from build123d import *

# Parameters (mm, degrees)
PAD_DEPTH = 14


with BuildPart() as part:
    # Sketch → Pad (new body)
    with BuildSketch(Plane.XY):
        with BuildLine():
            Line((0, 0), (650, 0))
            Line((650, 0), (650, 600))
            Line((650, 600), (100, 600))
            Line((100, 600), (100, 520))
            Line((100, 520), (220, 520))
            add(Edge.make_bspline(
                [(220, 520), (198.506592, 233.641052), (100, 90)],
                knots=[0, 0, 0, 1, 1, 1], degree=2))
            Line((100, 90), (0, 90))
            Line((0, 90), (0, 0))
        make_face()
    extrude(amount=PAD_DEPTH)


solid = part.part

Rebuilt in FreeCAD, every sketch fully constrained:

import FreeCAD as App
import Part
import Sketcher

V = App.Vector

doc = App.newDocument("Part")
body = doc.addObject("PartDesign::Body", "Body")

# Sketch on XY plane
sketch1 = doc.addObject("Sketcher::SketchObject", "Sketch")
body.addObject(sketch1)
sketch1.AttachmentSupport = (doc.XY_Plane, [""])
sketch1.MapMode = "FlatFace"
sketch1.addGeometry(Part.LineSegment(V(0, 0, 0), V(650, 0, 0)), False)
sketch1.addGeometry(Part.LineSegment(V(650, 0, 0), V(650, 600, 0)), False)
sketch1.addGeometry(Part.LineSegment(V(650, 600, 0), V(100, 600, 0)), False)
sketch1.addGeometry(Part.LineSegment(V(100, 600, 0), V(100, 520, 0)), False)
sketch1.addGeometry(Part.LineSegment(V(100, 520, 0), V(220, 520, 0)), False)
sketch1.addGeometry(Part.BSplineCurve([V(220, 520, 0), V(198.506592, 233.641052, 0), V(100, 90, 0)], [3, 3], [0, 1], False, 2, [1, 1, 1], False), False)
sketch1.addGeometry(Part.LineSegment(V(100, 90, 0), V(0, 90, 0)), False)
sketch1.addGeometry(Part.LineSegment(V(0, 90, 0), V(0, 0, 0)), False)
sketch1.addConstraint(Sketcher.Constraint("Block", 5))
sketch1.addConstraint(Sketcher.Constraint("Coincident", 0, 2, 1, 1))
sketch1.addConstraint(Sketcher.Constraint("Coincident", 1, 2, 2, 1))
sketch1.addConstraint(Sketcher.Constraint("Coincident", 2, 2, 3, 1))
sketch1.addConstraint(Sketcher.Constraint("Coincident", 3, 2, 4, 1))
sketch1.addConstraint(Sketcher.Constraint("Coincident", 4, 2, 5, 1))
sketch1.addConstraint(Sketcher.Constraint("Coincident", 5, 2, 6, 1))
sketch1.addConstraint(Sketcher.Constraint("Coincident", 6, 2, 7, 1))
sketch1.addConstraint(Sketcher.Constraint("Coincident", 7, 2, 0, 1))
sketch1.addConstraint(Sketcher.Constraint("Horizontal", 0))
sketch1.addConstraint(Sketcher.Constraint("Vertical", 1))
sketch1.addConstraint(Sketcher.Constraint("Horizontal", 2))
sketch1.addConstraint(Sketcher.Constraint("Vertical", 3))
sketch1.addConstraint(Sketcher.Constraint("Horizontal", 4))
sketch1.addConstraint(Sketcher.Constraint("Horizontal", 6))
sketch1.addConstraint(Sketcher.Constraint("Vertical", 7))
sketch1.addConstraint(Sketcher.Constraint("Coincident", 7, 2, -1, 1))
sketch1.addConstraint(Sketcher.Constraint("DistanceX", 0, 1, 0, 2, 650.0))
sketch1.addConstraint(Sketcher.Constraint("DistanceX", 2, 2, 2, 1, 550.0))
sketch1.addConstraint(Sketcher.Constraint("DistanceY", 1, 1, 1, 2, 600.0))
pad1 = doc.addObject("PartDesign::Pad", "Pad")
body.addObject(pad1)
pad1.Profile = sketch1
pad1.Length = 14

doc.recompute()
